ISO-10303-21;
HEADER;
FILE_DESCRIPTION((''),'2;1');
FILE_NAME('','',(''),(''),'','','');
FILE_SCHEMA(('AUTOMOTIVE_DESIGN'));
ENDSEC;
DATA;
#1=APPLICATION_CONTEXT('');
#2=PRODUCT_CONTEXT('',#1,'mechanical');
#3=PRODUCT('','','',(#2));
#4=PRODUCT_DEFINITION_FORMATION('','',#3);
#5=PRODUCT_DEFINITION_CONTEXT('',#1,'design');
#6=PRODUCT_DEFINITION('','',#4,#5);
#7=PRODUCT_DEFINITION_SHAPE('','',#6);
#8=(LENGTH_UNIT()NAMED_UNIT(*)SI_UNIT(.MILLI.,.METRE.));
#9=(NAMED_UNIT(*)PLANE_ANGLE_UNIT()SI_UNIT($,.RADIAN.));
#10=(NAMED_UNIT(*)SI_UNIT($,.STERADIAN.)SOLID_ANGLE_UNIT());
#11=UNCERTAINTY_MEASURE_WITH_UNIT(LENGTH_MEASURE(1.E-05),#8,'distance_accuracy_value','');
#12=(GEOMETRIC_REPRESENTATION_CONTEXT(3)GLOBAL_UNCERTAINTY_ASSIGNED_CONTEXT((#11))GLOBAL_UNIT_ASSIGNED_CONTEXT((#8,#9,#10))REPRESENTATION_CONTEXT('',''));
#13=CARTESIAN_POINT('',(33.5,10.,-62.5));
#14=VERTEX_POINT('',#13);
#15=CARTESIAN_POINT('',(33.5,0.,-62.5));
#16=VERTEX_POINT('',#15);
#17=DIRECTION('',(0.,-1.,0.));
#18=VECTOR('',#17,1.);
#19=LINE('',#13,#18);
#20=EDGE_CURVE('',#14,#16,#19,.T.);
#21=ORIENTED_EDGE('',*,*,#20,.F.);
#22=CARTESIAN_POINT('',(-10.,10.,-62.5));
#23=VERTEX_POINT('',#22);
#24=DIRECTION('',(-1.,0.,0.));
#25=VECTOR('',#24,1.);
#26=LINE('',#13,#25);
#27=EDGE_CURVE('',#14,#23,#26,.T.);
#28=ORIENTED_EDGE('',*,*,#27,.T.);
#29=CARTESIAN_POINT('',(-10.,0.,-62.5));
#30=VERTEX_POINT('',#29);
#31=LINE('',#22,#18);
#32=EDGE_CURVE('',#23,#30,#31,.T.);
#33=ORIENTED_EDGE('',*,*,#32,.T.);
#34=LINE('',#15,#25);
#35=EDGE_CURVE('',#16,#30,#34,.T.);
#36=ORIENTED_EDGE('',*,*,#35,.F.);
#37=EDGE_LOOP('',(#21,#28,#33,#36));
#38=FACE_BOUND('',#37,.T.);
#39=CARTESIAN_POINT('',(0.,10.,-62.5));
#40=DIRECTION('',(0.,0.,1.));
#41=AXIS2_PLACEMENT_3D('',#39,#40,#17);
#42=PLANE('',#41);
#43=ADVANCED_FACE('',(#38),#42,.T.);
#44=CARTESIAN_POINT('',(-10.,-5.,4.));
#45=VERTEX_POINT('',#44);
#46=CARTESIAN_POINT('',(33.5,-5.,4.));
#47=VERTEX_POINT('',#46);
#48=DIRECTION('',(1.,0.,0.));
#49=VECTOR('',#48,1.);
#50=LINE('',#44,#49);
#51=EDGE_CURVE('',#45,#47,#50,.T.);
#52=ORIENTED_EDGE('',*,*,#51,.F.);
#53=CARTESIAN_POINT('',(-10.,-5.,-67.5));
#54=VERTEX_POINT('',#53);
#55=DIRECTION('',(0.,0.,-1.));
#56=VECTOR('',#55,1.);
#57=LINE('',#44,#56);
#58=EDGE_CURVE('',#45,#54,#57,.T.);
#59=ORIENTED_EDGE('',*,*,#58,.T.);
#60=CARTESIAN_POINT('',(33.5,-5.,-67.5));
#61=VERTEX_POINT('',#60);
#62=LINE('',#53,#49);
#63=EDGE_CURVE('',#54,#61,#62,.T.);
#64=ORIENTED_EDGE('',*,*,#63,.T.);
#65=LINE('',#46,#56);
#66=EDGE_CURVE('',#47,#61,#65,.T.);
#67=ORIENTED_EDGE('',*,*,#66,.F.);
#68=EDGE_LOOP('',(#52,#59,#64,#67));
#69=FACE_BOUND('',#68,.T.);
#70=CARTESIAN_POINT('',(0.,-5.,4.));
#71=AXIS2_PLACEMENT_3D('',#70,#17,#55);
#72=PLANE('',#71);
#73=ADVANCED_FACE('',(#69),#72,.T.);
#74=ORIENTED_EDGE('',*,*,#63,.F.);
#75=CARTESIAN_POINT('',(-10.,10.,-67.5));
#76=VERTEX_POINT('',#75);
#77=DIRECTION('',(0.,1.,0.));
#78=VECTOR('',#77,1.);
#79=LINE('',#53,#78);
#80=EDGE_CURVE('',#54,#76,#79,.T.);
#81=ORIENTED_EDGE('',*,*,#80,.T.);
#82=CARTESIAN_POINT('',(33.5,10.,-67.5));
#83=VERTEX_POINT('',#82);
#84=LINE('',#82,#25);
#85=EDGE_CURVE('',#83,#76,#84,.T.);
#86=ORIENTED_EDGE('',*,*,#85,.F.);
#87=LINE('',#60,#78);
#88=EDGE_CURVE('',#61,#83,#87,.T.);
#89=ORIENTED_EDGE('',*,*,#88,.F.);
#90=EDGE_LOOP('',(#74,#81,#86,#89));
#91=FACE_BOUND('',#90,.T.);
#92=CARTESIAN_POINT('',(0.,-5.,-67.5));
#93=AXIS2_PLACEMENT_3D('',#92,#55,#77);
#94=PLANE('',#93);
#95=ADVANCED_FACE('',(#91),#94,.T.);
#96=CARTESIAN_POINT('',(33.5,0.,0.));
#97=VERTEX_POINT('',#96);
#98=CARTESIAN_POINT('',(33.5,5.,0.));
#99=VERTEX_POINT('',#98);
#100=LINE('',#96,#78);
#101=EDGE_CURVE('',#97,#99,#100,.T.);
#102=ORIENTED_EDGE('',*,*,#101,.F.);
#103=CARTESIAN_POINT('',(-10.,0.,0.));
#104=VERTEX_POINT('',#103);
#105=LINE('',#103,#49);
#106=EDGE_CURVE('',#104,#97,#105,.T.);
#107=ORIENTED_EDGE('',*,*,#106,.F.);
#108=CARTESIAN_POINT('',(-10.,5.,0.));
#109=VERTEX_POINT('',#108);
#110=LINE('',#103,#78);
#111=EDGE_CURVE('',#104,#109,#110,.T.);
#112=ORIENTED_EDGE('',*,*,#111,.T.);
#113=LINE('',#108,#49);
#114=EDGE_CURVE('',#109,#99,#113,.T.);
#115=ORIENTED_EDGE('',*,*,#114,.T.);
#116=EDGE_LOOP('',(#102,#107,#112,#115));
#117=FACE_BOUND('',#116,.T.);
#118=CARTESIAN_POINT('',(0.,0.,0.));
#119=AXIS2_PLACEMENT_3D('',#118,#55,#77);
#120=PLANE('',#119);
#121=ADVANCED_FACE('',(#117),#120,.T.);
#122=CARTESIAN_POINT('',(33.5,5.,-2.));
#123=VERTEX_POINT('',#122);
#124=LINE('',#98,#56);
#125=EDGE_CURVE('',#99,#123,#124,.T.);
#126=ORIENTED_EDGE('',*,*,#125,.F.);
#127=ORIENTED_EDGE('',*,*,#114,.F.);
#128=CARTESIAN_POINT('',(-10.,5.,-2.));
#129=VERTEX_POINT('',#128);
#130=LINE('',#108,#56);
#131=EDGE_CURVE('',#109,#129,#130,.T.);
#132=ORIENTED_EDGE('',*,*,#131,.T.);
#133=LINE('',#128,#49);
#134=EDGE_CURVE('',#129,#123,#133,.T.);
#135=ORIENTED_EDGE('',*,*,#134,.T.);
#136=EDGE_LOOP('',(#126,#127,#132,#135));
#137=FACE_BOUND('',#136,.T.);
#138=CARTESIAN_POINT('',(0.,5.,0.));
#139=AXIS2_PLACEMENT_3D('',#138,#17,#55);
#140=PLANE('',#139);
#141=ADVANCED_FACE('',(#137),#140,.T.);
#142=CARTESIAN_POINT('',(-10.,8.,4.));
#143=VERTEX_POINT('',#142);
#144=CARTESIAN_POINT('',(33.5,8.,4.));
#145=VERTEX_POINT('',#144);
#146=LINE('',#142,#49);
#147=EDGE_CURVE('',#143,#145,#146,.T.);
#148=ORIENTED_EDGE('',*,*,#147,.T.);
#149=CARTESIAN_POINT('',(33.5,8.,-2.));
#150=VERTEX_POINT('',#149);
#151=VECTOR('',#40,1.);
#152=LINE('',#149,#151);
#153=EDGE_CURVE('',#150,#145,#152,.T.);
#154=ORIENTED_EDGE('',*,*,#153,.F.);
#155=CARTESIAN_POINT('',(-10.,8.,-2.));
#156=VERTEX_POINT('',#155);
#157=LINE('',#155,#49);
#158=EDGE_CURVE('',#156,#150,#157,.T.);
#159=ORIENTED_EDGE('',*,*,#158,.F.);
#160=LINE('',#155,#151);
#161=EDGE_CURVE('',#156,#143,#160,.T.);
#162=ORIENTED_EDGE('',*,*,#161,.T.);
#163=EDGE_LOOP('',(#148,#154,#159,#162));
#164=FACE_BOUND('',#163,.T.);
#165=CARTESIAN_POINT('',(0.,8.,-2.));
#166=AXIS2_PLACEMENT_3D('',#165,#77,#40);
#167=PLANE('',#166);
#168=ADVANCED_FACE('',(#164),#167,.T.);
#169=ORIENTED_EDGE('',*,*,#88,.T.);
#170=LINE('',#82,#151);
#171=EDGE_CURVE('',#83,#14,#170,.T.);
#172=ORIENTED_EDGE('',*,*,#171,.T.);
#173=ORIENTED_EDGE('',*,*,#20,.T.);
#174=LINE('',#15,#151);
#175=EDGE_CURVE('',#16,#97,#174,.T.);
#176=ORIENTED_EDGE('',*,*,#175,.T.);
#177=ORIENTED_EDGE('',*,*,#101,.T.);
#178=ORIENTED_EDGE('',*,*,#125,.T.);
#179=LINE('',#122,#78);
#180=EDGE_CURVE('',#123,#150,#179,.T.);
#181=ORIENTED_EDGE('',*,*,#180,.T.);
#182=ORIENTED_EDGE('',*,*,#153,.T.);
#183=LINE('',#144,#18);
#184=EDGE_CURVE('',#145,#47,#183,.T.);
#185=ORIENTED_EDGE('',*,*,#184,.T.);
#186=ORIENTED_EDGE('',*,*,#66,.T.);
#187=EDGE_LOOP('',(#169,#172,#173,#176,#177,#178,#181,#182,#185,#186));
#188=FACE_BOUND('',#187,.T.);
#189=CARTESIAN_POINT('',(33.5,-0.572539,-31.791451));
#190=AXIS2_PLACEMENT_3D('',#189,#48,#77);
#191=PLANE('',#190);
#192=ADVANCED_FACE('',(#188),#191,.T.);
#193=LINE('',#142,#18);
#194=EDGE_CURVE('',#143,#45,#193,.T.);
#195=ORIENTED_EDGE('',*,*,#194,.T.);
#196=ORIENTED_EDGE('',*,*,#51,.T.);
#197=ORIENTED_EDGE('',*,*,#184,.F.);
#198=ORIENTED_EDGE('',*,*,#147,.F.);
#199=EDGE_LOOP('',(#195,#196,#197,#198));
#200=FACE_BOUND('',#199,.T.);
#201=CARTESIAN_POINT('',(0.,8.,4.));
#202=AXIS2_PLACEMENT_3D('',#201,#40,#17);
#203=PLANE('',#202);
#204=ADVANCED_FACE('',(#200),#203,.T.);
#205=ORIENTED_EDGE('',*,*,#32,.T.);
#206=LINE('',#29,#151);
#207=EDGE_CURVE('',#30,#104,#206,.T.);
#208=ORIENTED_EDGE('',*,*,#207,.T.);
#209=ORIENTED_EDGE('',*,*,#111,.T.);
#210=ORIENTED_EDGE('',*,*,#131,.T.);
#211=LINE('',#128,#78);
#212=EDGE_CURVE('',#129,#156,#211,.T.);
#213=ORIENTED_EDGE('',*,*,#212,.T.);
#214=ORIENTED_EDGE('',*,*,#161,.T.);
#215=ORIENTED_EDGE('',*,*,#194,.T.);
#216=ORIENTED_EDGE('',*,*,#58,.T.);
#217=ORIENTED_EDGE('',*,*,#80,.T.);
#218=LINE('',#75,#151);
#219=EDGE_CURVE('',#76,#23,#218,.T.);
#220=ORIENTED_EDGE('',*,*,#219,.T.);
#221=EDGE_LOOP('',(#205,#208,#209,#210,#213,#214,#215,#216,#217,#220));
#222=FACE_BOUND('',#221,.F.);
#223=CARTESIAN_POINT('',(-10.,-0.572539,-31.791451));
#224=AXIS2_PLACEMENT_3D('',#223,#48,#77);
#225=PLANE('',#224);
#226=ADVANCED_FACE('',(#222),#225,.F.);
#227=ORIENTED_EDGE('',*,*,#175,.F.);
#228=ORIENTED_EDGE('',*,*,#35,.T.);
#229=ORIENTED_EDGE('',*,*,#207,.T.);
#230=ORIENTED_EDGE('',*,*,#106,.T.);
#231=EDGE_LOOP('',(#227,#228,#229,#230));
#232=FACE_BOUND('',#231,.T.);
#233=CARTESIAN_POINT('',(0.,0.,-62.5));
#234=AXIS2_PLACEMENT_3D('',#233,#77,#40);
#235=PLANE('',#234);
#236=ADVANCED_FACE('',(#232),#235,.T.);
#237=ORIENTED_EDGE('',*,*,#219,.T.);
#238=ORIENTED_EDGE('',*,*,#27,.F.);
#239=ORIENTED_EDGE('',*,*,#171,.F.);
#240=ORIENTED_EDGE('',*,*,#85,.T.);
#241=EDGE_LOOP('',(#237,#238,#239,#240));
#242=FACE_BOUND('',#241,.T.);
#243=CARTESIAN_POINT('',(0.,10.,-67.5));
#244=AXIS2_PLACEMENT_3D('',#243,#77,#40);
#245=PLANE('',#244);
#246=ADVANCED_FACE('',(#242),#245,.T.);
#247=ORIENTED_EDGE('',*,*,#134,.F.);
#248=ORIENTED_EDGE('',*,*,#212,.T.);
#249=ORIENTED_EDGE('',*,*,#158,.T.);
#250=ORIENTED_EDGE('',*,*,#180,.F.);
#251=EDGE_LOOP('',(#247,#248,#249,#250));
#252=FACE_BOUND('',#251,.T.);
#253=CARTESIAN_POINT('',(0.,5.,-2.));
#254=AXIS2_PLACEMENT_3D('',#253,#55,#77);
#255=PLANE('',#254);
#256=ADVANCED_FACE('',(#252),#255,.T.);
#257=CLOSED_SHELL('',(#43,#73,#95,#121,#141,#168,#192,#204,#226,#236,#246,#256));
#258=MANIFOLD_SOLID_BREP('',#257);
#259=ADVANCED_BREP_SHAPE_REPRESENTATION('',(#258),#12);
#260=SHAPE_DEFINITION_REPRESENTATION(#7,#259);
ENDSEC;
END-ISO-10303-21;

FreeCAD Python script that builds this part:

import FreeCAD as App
import Part
import Sketcher
from FreeCAD import Vector
Q = App.Units.Quantity


def add_polygon(sketch, points):
    """Adds a closed chain of lines whose ends are joined by coincident constraints."""
    first, n = sketch.GeometryCount, len(points)
    for a, b in zip(points, points[1:] + points[:1]):
        sketch.addGeometry(Part.LineSegment(App.Vector(*a, 0), App.Vector(*b, 0)), False)
    for i in range(n):
        sketch.addConstraint(Sketcher.Constraint("Coincident", first + i, 2, first + (i + 1) % n, 1))

doc = App.newDocument("Part")
body = doc.addObject("PartDesign::Body", "Body")

sketch1 = body.newObject("Sketcher::SketchObject", "Sketch")
sketch1.AttachmentSupport = (doc.getObject("YZ_Plane"), [""])
sketch1.MapMode = "FlatFace"
add_polygon(sketch1, [(0, -62.5), (0, 0), (5, 0), (5, -2), (8, -2), (8, 4), (-5, 4), (-5, -67.5), (10, -67.5), (10, -62.5)])
sketch1.addConstraint([
    Sketcher.Constraint("Vertical", 0),
    Sketcher.Constraint("Horizontal", 1),
    Sketcher.Constraint("Vertical", 2),
    Sketcher.Constraint("Horizontal", 3),
    Sketcher.Constraint("Vertical", 4),
    Sketcher.Constraint("Horizontal", 5),
    Sketcher.Constraint("Vertical", 6),
    Sketcher.Constraint("Horizontal", 7),
    Sketcher.Constraint("Vertical", 8),
    Sketcher.Constraint("Horizontal", 9),
    Sketcher.Constraint("Coincident", 0, 2, -1, 1),
    Sketcher.Constraint("Equal", 1, 8),
    Sketcher.Constraint("DistanceX", 1, 1, 1, 2, Q("5 mm")),
    Sketcher.Constraint("DistanceX", 3, 1, 3, 2, Q("3 mm")),
    Sketcher.Constraint("DistanceX", 5, 2, 5, 1, Q("13 mm")),
    Sketcher.Constraint("DistanceX", 7, 1, 7, 2, Q("15 mm")),
    Sketcher.Constraint("DistanceY", 2, 2, 2, 1, Q("2 mm")),
    Sketcher.Constraint("DistanceY", 4, 1, 4, 2, Q("6 mm")),
    Sketcher.Constraint("DistanceY", 0, 1, 0, 2, Q("62.5 mm")),
])
pad1 = body.newObject("PartDesign::Pad", "Pad")
pad1.Profile = sketch1
pad1.Type = "TwoLengths"
pad1.Length = 33.5
pad1.Length2 = 10

doc.recompute()
